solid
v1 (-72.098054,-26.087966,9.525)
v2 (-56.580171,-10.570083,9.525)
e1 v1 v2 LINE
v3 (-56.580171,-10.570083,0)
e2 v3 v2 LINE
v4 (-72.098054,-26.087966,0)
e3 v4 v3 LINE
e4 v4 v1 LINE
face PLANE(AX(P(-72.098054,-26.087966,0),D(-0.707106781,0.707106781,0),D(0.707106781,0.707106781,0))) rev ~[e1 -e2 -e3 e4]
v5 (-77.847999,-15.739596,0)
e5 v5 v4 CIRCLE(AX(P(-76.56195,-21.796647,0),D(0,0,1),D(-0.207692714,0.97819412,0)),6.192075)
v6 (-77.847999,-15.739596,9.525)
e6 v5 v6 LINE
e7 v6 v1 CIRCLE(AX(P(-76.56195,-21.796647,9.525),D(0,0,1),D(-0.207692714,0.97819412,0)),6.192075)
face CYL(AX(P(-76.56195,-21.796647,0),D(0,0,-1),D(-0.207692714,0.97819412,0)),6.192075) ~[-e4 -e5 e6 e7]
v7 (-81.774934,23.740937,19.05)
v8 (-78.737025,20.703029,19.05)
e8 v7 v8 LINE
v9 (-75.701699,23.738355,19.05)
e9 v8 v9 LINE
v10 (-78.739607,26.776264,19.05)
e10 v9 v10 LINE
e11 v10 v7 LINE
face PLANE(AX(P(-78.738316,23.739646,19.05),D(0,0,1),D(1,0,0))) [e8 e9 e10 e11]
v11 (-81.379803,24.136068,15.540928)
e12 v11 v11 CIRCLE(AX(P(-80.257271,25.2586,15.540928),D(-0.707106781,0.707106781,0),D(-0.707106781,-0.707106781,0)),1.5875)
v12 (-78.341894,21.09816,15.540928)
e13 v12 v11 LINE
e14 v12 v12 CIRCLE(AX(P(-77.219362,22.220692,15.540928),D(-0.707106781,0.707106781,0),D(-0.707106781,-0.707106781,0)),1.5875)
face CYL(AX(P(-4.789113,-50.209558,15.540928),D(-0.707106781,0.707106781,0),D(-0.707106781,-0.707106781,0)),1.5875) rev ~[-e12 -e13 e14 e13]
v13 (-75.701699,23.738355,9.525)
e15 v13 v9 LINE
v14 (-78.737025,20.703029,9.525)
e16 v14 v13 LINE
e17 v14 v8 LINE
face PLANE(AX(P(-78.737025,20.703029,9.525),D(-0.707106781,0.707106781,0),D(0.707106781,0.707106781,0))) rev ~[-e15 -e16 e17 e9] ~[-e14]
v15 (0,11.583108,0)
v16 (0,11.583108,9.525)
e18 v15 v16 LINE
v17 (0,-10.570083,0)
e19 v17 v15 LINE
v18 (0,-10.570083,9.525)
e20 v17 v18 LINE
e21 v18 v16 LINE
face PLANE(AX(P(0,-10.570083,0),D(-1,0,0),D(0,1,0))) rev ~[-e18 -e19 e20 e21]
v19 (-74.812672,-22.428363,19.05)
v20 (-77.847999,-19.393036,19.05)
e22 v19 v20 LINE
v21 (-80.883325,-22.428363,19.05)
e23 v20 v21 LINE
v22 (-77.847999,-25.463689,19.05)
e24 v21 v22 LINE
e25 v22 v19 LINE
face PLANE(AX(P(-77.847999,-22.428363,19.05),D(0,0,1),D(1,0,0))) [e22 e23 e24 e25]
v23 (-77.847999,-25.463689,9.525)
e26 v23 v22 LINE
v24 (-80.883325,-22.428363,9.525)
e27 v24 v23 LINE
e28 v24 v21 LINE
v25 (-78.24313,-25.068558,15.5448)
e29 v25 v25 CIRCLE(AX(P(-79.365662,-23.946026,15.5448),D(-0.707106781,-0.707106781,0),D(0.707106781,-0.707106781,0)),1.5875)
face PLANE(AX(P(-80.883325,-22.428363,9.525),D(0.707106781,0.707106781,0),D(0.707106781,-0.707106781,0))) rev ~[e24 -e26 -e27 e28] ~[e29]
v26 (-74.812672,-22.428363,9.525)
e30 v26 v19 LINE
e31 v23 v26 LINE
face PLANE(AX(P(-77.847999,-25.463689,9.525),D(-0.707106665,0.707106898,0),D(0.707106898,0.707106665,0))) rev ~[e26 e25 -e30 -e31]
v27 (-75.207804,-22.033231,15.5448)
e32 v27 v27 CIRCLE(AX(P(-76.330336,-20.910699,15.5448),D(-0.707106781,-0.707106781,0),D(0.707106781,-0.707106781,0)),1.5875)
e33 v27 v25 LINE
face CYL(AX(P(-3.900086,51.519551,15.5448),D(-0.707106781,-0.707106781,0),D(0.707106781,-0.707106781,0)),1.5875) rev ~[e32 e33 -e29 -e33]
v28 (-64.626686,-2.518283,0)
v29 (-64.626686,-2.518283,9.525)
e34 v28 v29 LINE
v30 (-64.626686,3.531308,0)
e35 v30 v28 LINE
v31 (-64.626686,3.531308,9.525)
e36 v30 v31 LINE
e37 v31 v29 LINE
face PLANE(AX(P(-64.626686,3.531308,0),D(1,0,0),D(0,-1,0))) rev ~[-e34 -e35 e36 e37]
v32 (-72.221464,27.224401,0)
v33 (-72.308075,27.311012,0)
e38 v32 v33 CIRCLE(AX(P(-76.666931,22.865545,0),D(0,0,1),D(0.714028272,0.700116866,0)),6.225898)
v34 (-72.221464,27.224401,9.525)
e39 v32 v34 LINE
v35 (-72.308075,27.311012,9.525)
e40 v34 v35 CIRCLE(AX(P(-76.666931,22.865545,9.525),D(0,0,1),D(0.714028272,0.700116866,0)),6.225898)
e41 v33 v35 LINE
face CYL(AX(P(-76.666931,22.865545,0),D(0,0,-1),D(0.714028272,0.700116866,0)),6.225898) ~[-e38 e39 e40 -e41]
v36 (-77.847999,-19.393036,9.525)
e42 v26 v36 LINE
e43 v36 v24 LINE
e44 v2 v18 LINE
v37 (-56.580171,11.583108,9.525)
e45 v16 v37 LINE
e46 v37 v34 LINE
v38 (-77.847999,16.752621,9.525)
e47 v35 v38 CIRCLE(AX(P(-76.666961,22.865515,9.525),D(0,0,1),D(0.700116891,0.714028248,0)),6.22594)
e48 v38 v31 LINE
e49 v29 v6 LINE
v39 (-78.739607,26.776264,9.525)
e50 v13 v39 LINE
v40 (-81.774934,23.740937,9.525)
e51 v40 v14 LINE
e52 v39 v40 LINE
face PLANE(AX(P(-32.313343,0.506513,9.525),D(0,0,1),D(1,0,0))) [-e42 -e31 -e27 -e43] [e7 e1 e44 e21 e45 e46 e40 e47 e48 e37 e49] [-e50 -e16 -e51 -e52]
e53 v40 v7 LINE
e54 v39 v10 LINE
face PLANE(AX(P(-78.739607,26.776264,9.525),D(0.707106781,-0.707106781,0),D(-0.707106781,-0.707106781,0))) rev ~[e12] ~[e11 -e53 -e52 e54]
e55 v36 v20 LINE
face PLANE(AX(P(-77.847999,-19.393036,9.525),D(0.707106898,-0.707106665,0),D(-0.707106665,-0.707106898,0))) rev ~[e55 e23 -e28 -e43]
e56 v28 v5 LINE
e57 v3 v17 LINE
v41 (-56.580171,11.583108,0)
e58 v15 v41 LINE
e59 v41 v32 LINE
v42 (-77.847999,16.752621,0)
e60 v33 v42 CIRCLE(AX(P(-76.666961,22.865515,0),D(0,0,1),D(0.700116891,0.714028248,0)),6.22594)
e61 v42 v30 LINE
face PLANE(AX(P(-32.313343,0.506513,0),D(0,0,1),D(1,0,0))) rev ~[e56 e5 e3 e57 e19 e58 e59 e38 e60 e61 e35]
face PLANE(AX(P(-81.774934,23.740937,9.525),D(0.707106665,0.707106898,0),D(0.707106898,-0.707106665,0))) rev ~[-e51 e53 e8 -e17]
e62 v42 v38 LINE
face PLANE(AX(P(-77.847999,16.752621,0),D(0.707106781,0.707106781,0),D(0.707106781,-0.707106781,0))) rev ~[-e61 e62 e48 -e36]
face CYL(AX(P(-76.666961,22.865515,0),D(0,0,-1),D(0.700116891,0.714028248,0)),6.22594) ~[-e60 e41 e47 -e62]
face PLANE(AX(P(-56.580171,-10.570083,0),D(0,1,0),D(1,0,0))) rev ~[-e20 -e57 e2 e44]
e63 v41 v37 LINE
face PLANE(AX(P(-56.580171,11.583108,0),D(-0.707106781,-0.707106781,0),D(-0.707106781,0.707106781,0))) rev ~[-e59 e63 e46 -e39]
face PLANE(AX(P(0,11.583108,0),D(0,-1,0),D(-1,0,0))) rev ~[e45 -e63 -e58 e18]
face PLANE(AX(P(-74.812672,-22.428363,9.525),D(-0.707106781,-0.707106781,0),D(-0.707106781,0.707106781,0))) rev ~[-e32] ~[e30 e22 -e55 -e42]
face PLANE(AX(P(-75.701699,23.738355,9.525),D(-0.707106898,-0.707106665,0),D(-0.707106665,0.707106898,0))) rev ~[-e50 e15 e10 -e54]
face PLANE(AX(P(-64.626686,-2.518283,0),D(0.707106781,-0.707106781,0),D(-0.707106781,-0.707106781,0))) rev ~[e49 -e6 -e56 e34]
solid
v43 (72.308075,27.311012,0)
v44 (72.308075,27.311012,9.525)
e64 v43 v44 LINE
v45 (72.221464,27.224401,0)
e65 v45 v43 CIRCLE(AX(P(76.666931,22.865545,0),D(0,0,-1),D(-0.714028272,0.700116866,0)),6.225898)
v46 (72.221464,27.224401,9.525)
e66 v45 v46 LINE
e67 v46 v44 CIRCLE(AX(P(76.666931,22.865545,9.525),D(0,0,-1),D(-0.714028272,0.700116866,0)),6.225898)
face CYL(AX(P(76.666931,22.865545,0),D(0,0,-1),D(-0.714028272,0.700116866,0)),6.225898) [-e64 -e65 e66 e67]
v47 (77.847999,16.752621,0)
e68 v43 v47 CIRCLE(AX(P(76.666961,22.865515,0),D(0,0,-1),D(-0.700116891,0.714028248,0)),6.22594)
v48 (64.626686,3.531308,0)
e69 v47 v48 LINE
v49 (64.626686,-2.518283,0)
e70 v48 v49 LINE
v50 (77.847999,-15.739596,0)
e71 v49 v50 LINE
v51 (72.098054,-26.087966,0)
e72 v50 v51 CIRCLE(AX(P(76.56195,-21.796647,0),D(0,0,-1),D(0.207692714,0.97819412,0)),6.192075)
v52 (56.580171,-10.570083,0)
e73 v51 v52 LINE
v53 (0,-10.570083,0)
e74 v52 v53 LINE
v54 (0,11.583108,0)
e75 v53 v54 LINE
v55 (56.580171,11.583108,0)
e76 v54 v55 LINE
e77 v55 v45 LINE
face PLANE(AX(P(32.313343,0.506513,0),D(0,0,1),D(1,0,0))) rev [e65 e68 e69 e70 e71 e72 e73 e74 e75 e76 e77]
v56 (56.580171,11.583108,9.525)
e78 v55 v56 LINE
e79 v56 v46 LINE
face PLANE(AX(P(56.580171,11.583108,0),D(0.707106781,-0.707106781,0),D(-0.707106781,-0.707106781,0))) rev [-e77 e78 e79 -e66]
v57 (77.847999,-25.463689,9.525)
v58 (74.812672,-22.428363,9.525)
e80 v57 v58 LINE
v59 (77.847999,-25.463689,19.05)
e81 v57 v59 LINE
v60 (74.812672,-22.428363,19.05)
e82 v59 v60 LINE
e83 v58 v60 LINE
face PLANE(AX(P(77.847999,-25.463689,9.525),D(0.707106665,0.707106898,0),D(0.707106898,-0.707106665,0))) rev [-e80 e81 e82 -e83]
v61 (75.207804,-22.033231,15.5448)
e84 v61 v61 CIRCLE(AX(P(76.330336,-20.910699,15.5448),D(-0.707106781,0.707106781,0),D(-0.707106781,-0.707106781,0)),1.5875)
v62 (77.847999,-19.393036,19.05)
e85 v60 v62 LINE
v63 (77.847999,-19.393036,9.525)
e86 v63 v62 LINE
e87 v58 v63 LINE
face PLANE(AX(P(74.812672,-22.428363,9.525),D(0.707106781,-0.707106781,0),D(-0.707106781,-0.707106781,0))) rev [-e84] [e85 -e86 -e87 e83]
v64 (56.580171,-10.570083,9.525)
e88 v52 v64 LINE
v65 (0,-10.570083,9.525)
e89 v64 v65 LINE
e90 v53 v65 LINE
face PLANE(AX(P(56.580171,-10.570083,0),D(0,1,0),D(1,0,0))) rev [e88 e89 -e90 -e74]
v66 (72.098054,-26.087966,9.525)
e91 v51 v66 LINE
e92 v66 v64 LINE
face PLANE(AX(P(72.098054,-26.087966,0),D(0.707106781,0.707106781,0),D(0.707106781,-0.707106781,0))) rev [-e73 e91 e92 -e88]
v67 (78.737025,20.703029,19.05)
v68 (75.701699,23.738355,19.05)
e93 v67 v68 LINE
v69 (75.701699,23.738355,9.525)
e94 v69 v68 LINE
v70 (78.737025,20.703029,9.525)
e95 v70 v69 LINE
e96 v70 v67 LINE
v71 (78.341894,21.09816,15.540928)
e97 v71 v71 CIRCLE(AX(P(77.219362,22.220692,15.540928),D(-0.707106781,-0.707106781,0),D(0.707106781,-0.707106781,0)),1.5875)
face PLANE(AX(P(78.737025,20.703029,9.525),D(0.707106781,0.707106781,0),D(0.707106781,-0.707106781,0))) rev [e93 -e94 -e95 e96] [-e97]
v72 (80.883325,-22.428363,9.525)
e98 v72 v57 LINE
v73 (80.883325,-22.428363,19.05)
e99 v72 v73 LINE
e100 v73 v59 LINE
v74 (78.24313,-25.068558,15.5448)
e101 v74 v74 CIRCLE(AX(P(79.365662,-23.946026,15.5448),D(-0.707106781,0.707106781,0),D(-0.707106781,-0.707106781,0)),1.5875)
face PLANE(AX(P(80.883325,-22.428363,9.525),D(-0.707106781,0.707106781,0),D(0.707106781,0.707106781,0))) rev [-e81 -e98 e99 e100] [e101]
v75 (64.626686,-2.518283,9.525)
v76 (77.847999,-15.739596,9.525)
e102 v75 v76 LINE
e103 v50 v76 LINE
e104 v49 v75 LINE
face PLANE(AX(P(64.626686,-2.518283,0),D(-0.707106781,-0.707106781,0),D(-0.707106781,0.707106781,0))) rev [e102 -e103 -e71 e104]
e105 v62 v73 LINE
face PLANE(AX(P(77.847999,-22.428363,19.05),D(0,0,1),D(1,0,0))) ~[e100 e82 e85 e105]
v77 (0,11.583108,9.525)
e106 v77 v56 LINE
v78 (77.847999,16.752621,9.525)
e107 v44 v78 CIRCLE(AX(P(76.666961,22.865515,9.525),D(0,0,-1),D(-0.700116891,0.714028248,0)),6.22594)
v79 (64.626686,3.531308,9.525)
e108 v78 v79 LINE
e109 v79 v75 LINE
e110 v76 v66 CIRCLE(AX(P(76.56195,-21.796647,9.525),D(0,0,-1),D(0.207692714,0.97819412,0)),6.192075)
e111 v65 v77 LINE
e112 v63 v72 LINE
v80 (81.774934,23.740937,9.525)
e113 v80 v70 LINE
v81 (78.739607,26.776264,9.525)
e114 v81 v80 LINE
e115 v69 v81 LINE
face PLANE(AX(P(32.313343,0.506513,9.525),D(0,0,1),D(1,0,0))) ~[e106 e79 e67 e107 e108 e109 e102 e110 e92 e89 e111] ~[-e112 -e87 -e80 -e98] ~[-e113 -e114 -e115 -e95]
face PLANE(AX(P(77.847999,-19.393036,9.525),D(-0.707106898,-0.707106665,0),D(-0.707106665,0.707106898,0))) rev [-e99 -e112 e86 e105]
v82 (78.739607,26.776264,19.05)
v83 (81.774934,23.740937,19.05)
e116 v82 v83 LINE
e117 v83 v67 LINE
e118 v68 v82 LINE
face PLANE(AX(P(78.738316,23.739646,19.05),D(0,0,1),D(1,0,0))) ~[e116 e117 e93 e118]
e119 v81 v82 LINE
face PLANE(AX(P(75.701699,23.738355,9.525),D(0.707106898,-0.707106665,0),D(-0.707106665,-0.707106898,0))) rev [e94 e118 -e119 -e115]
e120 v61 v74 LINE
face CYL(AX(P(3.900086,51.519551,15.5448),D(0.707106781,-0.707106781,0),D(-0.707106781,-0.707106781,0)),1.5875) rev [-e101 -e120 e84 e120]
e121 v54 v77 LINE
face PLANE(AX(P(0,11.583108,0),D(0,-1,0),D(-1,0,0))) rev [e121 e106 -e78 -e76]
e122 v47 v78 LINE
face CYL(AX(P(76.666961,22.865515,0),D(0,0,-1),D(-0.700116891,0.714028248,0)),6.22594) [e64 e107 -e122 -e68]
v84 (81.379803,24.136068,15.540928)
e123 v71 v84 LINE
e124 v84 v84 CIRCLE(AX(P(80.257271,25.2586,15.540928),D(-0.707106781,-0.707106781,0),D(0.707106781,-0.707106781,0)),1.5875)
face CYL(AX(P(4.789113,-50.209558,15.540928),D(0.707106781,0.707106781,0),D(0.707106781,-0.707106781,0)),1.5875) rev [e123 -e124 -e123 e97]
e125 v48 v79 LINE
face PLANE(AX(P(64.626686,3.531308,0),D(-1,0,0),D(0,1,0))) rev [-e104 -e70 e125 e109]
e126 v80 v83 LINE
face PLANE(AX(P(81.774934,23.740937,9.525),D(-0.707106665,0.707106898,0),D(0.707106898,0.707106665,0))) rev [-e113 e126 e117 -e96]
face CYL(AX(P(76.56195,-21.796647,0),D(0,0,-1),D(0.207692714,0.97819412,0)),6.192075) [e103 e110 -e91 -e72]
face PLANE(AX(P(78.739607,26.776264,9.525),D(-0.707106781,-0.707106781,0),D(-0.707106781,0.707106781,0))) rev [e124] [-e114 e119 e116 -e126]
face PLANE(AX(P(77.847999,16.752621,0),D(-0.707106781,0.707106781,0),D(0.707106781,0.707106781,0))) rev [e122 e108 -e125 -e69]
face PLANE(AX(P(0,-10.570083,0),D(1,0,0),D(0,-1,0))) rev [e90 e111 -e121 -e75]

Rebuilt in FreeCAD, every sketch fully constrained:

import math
import FreeCAD as App
import Part
import Sketcher

V = App.Vector
Q = App.Units.Quantity

doc = App.newDocument("Part")
params = doc.addObject("Spreadsheet::Sheet", "Params")
for row, (alias, value) in enumerate([
    ("sketch1_length", "0.864 in"),
    ("pad1_length", "0.375 in"),
    ("sketch2_length", "0.169 in"),
    ("pad2_length", "0.375 in"),
    ("sketch3_diameter", "0.125 in"),
    ("hole_diameter", "0.125 in"),
    ("sketch4_diameter", "0.125 in"),
    ("hole2_diameter", "0.125 in"),
], start=1):
    params.set(f"A{row}", alias)
    params.set(f"B{row}", "=" + value)
    params.setAlias(f"B{row}", alias)

body = doc.addObject("PartDesign::Body", "Body")

# Sketch on XY plane
sketch1 = body.newObject("Sketcher::SketchObject", "Sketch")
sketch1.AttachmentSupport = (doc.getObject("XY_Plane"), [""])
sketch1.MapMode = "FlatFace"
sketch1.addGeometry([
    Part.LineSegment(V(0, -10.57, 0), V(0, 11.58, 0)),  # 0
    Part.LineSegment(V(0, 11.58, 0), V(-56.58, 11.58, 0)),  # 1
    Part.LineSegment(V(-56.58, 11.58, 0), V(-72.22, 27.22, 0)),  # 2
    Part.ArcOfCircle(Part.Circle(V(-76.67, 22.87, 0), V(0, 0, 1), 6.23), math.radians(44.44), math.radians(45.56)),  # 3
    Part.ArcOfCircle(Part.Circle(V(-76.67, 22.87, 0), V(0, 0, 1), 6.23), math.radians(46), math.radians(259)),  # 4
    Part.LineSegment(V(-77.85, 16.75, 0), V(-64.63, 3.53, 0)),  # 5
    Part.LineSegment(V(-64.63, 3.53, 0), V(-64.63, -2.52, 0)),  # 6
    Part.LineSegment(V(-64.63, -2.52, 0), V(-77.85, -15.74, 0)),  # 7
    Part.ArcOfCircle(Part.Circle(V(-76.56, -21.8, 0), V(0, 0, 1), 6.19), math.radians(102), math.radians(316)),  # 8
    Part.LineSegment(V(-72.1, -26.09, 0), V(-56.58, -10.57, 0)),  # 9
    Part.LineSegment(V(-56.58, -10.57, 0), V(0, -10.57, 0)),  # 10
], False)
sketch1.addConstraint([
    Sketcher.Constraint("Coincident", 0, 2, 1, 1),
    Sketcher.Constraint("Coincident", 1, 2, 2, 1),
    Sketcher.Constraint("Coincident", 2, 2, 3, 1),
    Sketcher.Constraint("Tangent", 3, 2, 4, 1),
    Sketcher.Constraint("Coincident", 4, 2, 5, 1),
    Sketcher.Constraint("Coincident", 5, 2, 6, 1),
    Sketcher.Constraint("Coincident", 6, 2, 7, 1),
    Sketcher.Constraint("Coincident", 7, 2, 8, 1),
    Sketcher.Constraint("Coincident", 8, 2, 9, 1),
    Sketcher.Constraint("Coincident", 9, 2, 10, 1),
    Sketcher.Constraint("Coincident", 10, 2, 0, 1),
    Sketcher.Constraint("Vertical", 0),
    Sketcher.Constraint("Horizontal", 1),
    Sketcher.Constraint("Vertical", 6),
    Sketcher.Constraint("Horizontal", 10),
    Sketcher.Constraint("PointOnObject", 0, 2, -2),
    Sketcher.Constraint("Parallel", 2, 5),
    Sketcher.Constraint("Perpendicular", 5, 7),
    Sketcher.Constraint("Parallel", 7, 9),
    Sketcher.Constraint("Vertical", 4, 2, 7, 2),
    Sketcher.Constraint("Vertical", 1, 2, 9, 2),
    Sketcher.Constraint("Equal", 5, 7),
    Sketcher.Constraint("Radius", 3, 6.225898),
    Sketcher.Constraint("Distance", 9, Q("0.864 in")),
    Sketcher.Constraint("Radius", 4, 6.22594),
    Sketcher.Constraint("DistanceY", 5, 2, 1, 2, Q("0.317 in")),
    Sketcher.Constraint("DistanceY", 9, 2, 6, 2, Q("0.317 in")),
    Sketcher.Constraint("Radius", 8, 6.192075),
    Sketcher.Constraint("DistanceX", 1, 2, 1, 1, 56.580171),
    Sketcher.Constraint("DistanceY", 0, 1, 0, 2, 22.153191),
    Sketcher.Constraint("DistanceY", -1, 1, 2, 2, 27.224401),
    Sketcher.Constraint("DistanceX", 4, 2, -1, 1, 77.847999),
    Sketcher.Constraint("DistanceY", 6, 2, 4, 3, 25.383798),
    Sketcher.Constraint("Distance", 2, 22.120129),
    Sketcher.Constraint("DistanceX", 3, 2, 2, 2, 0.086611),
])
sketch1.setExpression("Constraints[23]", "Params.sketch1_length")
pad1 = body.newObject("PartDesign::Pad", "Pad")
pad1.Profile = sketch1
pad1.setExpression("Length", "Params.pad1_length")

# Sketch on XY plane
sketch2 = body.newObject("Sketcher::SketchObject", "Sketch001")
sketch2.AttachmentSupport = (doc.getObject("XY_Plane"), [""])
sketch2.MapMode = "FlatFace"
sketch2.AttachmentOffset = App.Placement(V(0, 0, 0.375 * 25.4), App.Rotation())
sketch2.addGeometry([
    Part.LineSegment(V(-81.8, 23.7, 0), V(-78.7, 20.7, 0)),  # 0
    Part.LineSegment(V(-78.7, 20.7, 0), V(-75.7, 23.7, 0)),  # 1
    Part.LineSegment(V(-75.7, 23.7, 0), V(-78.7, 26.8, 0)),  # 2
    Part.LineSegment(V(-78.7, 26.8, 0), V(-81.8, 23.7, 0)),  # 3
    Part.LineSegment(V(-77.8, -25.5, 0), V(-74.8, -22.4, 0)),  # 4
    Part.LineSegment(V(-74.8, -22.4, 0), V(-77.8, -19.4, 0)),  # 5
    Part.LineSegment(V(-77.8, -19.4, 0), V(-80.9, -22.4, 0)),  # 6
    Part.LineSegment(V(-80.9, -22.4, 0), V(-77.8, -25.5, 0)),  # 7
], False)
sketch2.addConstraint([
    Sketcher.Constraint("Coincident", 0, 2, 1, 1),
    Sketcher.Constraint("Coincident", 1, 2, 2, 1),
    Sketcher.Constraint("Coincident", 2, 2, 3, 1),
    Sketcher.Constraint("Coincident", 3, 2, 0, 1),
    Sketcher.Constraint("Coincident", 4, 2, 5, 1),
    Sketcher.Constraint("Coincident", 5, 2, 6, 1),
    Sketcher.Constraint("Coincident", 6, 2, 7, 1),
    Sketcher.Constraint("Coincident", 7, 2, 4, 1),
    Sketcher.Constraint("Perpendicular", 0, 1),
    Sketcher.Constraint("Perpendicular", 1, 2),
    Sketcher.Constraint("Perpendicular", 2, 3),
    Sketcher.Constraint("Parallel", 3, 4),
    Sketcher.Constraint("Perpendicular", 4, 5),
    Sketcher.Constraint("Perpendicular", 5, 6),
    Sketcher.Constraint("Perpendicular", 6, 7),
    Sketcher.Constraint("Horizontal", 4, 2, 6, 2),
    Sketcher.Constraint("Vertical", 5, 2, 7, 2),
    Sketcher.Constraint("Equal", 3, 4),
    Sketcher.Constraint("Distance", 1, Q("0.169 in")),
    Sketcher.Constraint("DistanceX", 5, 2, 1, 2, Q("0.0845 in")),
    Sketcher.Constraint("DistanceX", 1, 2, -1, 1, 75.701699),
    Sketcher.Constraint("DistanceY", 4, 2, 3, 2, 46.1693),
    Sketcher.Constraint("Distance", 0, 4.296251),
    Sketcher.Constraint("DistanceY", -1, 1, 0, 2, 20.703029),
])
sketch2.setExpression("Constraints[18]", "Params.sketch2_length")
pad2 = body.newObject("PartDesign::Pad", "Pad001")
pad2.Profile = sketch2
pad2.setExpression("Length", "Params.pad2_length")

# Sketch on an angled plane
sketch3 = body.newObject("Sketcher::SketchObject", "Sketch002")
sketch3.Placement = App.Placement(V(-48.620517, -48.620517, 0), App.Rotation(V(-0.707106781, 0.707106781, 0), V(0, 0, 0.999999999), V(0.707106781, 0.707106781, 0), "ZXY"))
sketch3.addGeometry(Part.Circle(V(39.2, 15.5, 0), V(0, 0, 1), 1.6), False)
sketch3.addConstraint([
    Sketcher.Constraint("Diameter", 0, Q("0.125 in")),
    Sketcher.Constraint("DistanceY", -1, 1, 0, 3, Q("0.612 in")),
    Sketcher.Constraint("DistanceX", -1, 1, 0, 3, 39.187601),
])
sketch3.setExpression("Constraints[0]", "Params.sketch3_diameter")
doc.recompute()
hole = body.newObject("PartDesign::Hole", "Hole")
hole.Profile = sketch3
hole.ThreadType = "None"
hole.setExpression("Diameter", "Params.hole_diameter")
hole.DepthType = "ThroughAll"

# Sketch on an angled plane
sketch4 = body.newObject("Sketcher::SketchObject", "Sketch003")
sketch4.Placement = App.Placement(V(-49.720027, 49.720027, 0), App.Rotation(V(0.707106781, 0.707106781, 0), V(0, 0, 0.999999999), V(0.707106781, -0.707106781, 0), "ZXY"))
sketch4.addGeometry(Part.Circle(V(-38.9, 15.5, 0), V(0, 0, 1), 1.6), False)
sketch4.addConstraint([
    Sketcher.Constraint("Diameter", 0, Q("0.125 in")),
    Sketcher.Constraint("DistanceX", 0, 3, -1, 1, 38.889933),
    Sketcher.Constraint("DistanceY", -1, 1, 0, 3, 15.540928),
])
sketch4.setExpression("Constraints[0]", "Params.sketch4_diameter")
doc.recompute()
hole2 = body.newObject("PartDesign::Hole", "Hole001")
hole2.Profile = sketch4
hole2.ThreadType = "None"
hole2.setExpression("Diameter", "Params.hole2_diameter")
hole2.DepthType = "ThroughAll"
body2 = doc.addObject("PartDesign::Body", "Body001")
doc.recompute()

mirroring = doc.addObject("Part::Mirroring", "Mirroring")
mirroring.Source = body
mirroring.Base = V(0, 0.506512, 4.7625)
mirroring.Normal = V(1, 0, 0)
body2.BaseFeature = mirroring
doc.recompute()
mirroring.Visibility = False

doc.recompute()
